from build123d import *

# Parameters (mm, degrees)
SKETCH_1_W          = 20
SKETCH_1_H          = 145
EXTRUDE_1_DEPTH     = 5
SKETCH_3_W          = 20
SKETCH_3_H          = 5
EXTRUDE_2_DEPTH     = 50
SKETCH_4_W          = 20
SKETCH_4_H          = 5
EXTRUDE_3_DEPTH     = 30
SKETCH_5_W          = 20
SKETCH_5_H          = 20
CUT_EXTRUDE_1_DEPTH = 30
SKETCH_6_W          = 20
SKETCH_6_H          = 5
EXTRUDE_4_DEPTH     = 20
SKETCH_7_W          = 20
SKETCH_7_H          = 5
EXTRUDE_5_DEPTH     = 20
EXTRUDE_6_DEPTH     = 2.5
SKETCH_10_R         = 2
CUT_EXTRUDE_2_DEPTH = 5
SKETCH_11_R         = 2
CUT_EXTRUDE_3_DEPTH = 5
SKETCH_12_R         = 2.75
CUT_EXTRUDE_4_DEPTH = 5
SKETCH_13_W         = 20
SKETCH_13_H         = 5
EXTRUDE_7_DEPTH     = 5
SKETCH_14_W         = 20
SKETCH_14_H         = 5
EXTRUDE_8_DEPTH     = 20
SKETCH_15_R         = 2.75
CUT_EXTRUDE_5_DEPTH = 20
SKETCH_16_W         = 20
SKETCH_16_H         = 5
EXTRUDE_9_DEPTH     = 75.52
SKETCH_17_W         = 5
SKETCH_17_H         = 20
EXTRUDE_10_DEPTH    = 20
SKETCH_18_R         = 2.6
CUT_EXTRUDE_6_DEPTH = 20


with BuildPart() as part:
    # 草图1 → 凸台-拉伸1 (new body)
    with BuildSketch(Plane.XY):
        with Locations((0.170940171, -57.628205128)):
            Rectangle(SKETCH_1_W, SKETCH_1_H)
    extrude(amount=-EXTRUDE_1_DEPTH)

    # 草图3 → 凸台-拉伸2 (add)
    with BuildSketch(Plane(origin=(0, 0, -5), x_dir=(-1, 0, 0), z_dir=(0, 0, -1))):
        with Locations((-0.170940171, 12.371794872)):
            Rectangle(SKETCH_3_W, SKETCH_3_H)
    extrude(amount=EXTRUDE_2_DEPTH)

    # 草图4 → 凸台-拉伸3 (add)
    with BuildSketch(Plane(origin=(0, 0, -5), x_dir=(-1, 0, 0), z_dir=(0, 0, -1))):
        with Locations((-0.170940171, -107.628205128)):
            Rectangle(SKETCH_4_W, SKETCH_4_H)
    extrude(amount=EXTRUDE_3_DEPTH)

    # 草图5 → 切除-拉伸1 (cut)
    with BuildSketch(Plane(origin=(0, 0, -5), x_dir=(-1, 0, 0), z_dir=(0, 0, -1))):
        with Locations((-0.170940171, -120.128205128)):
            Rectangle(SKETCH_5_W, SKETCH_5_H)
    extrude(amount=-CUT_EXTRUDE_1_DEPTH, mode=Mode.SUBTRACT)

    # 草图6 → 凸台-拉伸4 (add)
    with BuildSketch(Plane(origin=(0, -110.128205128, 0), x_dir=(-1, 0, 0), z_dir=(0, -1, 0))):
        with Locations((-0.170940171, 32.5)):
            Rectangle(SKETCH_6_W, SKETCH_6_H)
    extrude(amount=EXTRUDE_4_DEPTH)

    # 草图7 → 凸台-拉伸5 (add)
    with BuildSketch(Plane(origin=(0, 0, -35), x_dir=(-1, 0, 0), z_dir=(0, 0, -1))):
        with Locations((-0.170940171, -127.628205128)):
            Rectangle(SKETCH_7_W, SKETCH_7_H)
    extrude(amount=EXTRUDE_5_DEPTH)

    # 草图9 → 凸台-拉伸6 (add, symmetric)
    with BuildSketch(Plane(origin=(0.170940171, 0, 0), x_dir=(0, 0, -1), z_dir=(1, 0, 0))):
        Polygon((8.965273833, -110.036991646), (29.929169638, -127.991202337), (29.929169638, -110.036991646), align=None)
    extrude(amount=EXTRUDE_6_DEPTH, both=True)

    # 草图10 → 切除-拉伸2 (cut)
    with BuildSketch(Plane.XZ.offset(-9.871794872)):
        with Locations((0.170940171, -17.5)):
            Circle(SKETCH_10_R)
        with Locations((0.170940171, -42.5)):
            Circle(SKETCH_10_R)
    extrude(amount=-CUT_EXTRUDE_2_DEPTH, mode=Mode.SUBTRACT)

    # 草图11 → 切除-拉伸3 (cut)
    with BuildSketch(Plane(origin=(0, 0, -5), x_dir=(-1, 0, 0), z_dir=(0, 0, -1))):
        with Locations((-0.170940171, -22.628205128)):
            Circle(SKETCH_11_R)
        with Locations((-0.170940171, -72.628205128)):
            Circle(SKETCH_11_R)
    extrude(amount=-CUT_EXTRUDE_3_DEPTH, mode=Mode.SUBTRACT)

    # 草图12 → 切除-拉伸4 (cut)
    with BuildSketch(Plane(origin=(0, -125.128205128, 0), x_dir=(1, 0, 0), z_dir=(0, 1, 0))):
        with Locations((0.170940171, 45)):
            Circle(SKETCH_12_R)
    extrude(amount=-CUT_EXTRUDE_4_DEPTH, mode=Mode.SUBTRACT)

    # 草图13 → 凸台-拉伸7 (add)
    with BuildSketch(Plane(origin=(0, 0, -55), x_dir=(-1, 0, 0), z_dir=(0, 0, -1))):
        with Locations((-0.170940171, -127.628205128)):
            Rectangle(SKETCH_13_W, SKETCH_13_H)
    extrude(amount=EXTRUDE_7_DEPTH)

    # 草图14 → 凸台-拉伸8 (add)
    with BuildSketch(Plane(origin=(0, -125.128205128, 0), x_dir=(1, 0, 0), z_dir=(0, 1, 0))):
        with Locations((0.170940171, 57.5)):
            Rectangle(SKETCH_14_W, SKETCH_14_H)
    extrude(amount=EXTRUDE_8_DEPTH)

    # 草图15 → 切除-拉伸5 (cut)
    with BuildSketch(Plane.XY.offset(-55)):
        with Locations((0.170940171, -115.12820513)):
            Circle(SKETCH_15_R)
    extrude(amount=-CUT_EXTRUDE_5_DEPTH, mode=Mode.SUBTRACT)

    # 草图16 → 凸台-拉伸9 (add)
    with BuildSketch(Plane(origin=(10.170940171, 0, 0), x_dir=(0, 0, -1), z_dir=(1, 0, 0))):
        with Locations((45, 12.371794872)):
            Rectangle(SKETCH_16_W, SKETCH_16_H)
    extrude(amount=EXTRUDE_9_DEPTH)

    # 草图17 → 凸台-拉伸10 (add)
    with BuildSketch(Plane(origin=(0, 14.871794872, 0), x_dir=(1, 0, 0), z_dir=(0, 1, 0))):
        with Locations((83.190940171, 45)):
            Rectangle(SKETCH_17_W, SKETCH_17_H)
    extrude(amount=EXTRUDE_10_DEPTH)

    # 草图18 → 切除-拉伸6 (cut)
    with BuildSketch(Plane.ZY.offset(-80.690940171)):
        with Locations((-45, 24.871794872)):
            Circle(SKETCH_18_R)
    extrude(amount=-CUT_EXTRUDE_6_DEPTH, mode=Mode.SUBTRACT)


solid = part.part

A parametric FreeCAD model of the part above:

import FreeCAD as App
import Part
import Sketcher

V = App.Vector
Q = App.Units.Quantity


def add_polygon(sketch, points):
    """Adds a closed chain of lines whose ends are joined by coincident constraints."""
    first, n = sketch.GeometryCount, len(points)
    for a, b in zip(points, points[1:] + points[:1]):
        sketch.addGeometry(Part.LineSegment(App.Vector(*a, 0), App.Vector(*b, 0)), False)
    for i in range(n):
        sketch.addConstraint(Sketcher.Constraint("Coincident", first + i, 2, first + (i + 1) % n, 1))

doc = App.newDocument("Part")
params = doc.addObject("Spreadsheet::Sheet", "Params")
for row, (alias, value) in enumerate([
    ("sketch1_width", "20 mm"),
    ("sketch1_height", "145 mm"),
    ("pad1_length", "5 mm"),
    ("sketch2_width", "20 mm"),
    ("sketch2_height", "5 mm"),
    ("pad2_length", "50 mm"),
    ("sketch3_width", "20 mm"),
    ("sketch3_height", "5 mm"),
    ("pad3_length", "30 mm"),
    ("sketch4_width", "20 mm"),
    ("pocket1_length", "30 mm"),
    ("sketch5_width", "20 mm"),
    ("sketch5_height", "5 mm"),
    ("pad4_length", "20 mm"),
    ("sketch6_width", "20 mm"),
    ("sketch6_height", "5 mm"),
    ("pad5_length", "20 mm"),
    ("pad6_length", "5 mm"),
    ("sketch8_diameter", "4 mm"),
    ("pocket2_length", "5 mm"),
    ("sketch9_diameter", "4 mm"),
    ("pocket3_length", "5 mm"),
    ("sketch10_diameter", "5.5 mm"),
    ("pocket4_length", "5 mm"),
    ("sketch11_width", "20 mm"),
    ("sketch11_height", "5 mm"),
    ("pad7_length", "5 mm"),
    ("sketch12_width", "20 mm"),
    ("sketch12_height", "5 mm"),
    ("pad8_length", "20 mm"),
    ("sketch13_diameter", "5.5 mm"),
    ("pocket5_length", "20 mm"),
    ("sketch14_width", "5 mm"),
    ("sketch14_height", "20 mm"),
    ("pad9_length", "75.52 mm"),
    ("sketch15_width", "5 mm"),
    ("sketch15_height", "20 mm"),
    ("pad10_length", "20 mm"),
    ("sketch16_diameter", "5.2 mm"),
    ("pocket6_length", "20 mm"),
], start=1):
    params.set(f"A{row}", alias)
    params.set(f"B{row}", "=" + value)
    params.setAlias(f"B{row}", alias)

body = doc.addObject("PartDesign::Body", "Body")

sketch1 = body.newObject("Sketcher::SketchObject", "Sketch")
sketch1.AttachmentSupport = (doc.getObject("XY_Plane"), [""])
sketch1.MapMode = "FlatFace"
add_polygon(sketch1, [(-10, 15), (-10, -130), (10, -130), (10, 15)])
sketch1.addConstraint([
    Sketcher.Constraint("Vertical", 0),
    Sketcher.Constraint("Horizontal", 1),
    Sketcher.Constraint("Vertical", 2),
    Sketcher.Constraint("Horizontal", 3),
    Sketcher.Constraint("DistanceX", 1, 1, 1, 2, Q("20 mm")),
    Sketcher.Constraint("DistanceY", 0, 2, 0, 1, Q("145 mm")),
    Sketcher.Constraint("DistanceX", 0, 2, -1, 1, Q("9.82906 mm")),
    Sketcher.Constraint("DistanceY", 0, 2, -1, 1, Q("130.128205 mm")),
])
sketch1.setExpression("Constraints[8]", "Params.sketch1_width")
sketch1.setExpression("Constraints[9]", "Params.sketch1_height")
pad1 = body.newObject("PartDesign::Pad", "Pad")
pad1.Profile = sketch1
pad1.setExpression("Length", "Params.pad1_length")
pad1.Reversed = True

sketch2 = body.newObject("Sketcher::SketchObject", "Sketch001")
sketch2.AttachmentSupport = (doc.getObject("XY_Plane"), [""])
sketch2.MapMode = "FlatFace"
sketch2.AttachmentOffset = App.Placement(V(0, 0, -5), App.Rotation())
add_polygon(sketch2, [(10, 15), (10, 10), (-10, 10), (-10, 15)])
sketch2.addConstraint([
    Sketcher.Constraint("Vertical", 0),
    Sketcher.Constraint("Horizontal", 1),
    Sketcher.Constraint("Vertical", 2),
    Sketcher.Constraint("Horizontal", 3),
    Sketcher.Constraint("DistanceX", 1, 2, 1, 1, Q("20 mm")),
    Sketcher.Constraint("DistanceY", 0, 2, 0, 1, Q("5 mm")),
    Sketcher.Constraint("DistanceX", -1, 1, 0, 2, Q("10.17094 mm")),
    Sketcher.Constraint("DistanceY", -1, 1, 0, 2, Q("9.871795 mm")),
])
sketch2.setExpression("Constraints[8]", "Params.sketch2_width")
sketch2.setExpression("Constraints[9]", "Params.sketch2_height")
pad2 = body.newObject("PartDesign::Pad", "Pad001")
pad2.Profile = sketch2
pad2.setExpression("Length", "Params.pad2_length")
pad2.Reversed = True

sketch3 = body.newObject("Sketcher::SketchObject", "Sketch002")
sketch3.AttachmentSupport = (doc.getObject("XY_Plane"), [""])
sketch3.MapMode = "FlatFace"
sketch3.AttachmentOffset = App.Placement(V(0, 0, -5), App.Rotation())
add_polygon(sketch3, [(10, -105), (10, -110), (-10, -110), (-10, -105)])
sketch3.addConstraint([
    Sketcher.Constraint("Vertical", 0),
    Sketcher.Constraint("Horizontal", 1),
    Sketcher.Constraint("Vertical", 2),
    Sketcher.Constraint("Horizontal", 3),
    Sketcher.Constraint("DistanceX", 1, 2, 1, 1, Q("20 mm")),
    Sketcher.Constraint("DistanceY", 0, 2, 0, 1, Q("5 mm")),
    Sketcher.Constraint("DistanceX", -1, 1, 0, 2, Q("10.17094 mm")),
    Sketcher.Constraint("DistanceY", 0, 2, -1, 1, Q("110.128205 mm")),
])
sketch3.setExpression("Constraints[8]", "Params.sketch3_width")
sketch3.setExpression("Constraints[9]", "Params.sketch3_height")
pad3 = body.newObject("PartDesign::Pad", "Pad002")
pad3.Profile = sketch3
pad3.setExpression("Length", "Params.pad3_length")
pad3.Reversed = True

sketch4 = body.newObject("Sketcher::SketchObject", "Sketch003")
sketch4.AttachmentSupport = (doc.getObject("XY_Plane"), [""])
sketch4.MapMode = "FlatFace"
sketch4.AttachmentOffset = App.Placement(V(0, 0, -5), App.Rotation())
add_polygon(sketch4, [(10, -110), (10, -130), (-10, -130), (-10, -110)])
sketch4.addConstraint([
    Sketcher.Constraint("Vertical", 0),
    Sketcher.Constraint("Horizontal", 1),
    Sketcher.Constraint("Vertical", 2),
    Sketcher.Constraint("Horizontal", 3),
    Sketcher.Constraint("Equal", 3, 0),
    Sketcher.Constraint("DistanceX", 1, 2, 1, 1, Q("20 mm")),
    Sketcher.Constraint("DistanceX", -1, 1, 0, 2, Q("10.17094 mm")),
    Sketcher.Constraint("DistanceY", 0, 2, -1, 1, Q("130.128205 mm")),
])
sketch4.setExpression("Constraints[9]", "Params.sketch4_width")
pocket1 = body.newObject("PartDesign::Pocket", "Pocket")
pocket1.Profile = sketch4
pocket1.setExpression("Length", "Params.pocket1_length")
pocket1.Reversed = True

sketch5 = body.newObject("Sketcher::SketchObject", "Sketch004")
sketch5.AttachmentSupport = (doc.getObject("XZ_Plane"), [""])
sketch5.MapMode = "FlatFace"
sketch5.AttachmentOffset = App.Placement(V(0, 0, 110.128205), App.Rotation())
add_polygon(sketch5, [(10, -35), (10, -30), (-10, -30), (-10, -35)])
sketch5.addConstraint([
    Sketcher.Constraint("Vertical", 0),
    Sketcher.Constraint("Horizontal", 1),
    Sketcher.Constraint("Vertical", 2),
    Sketcher.Constraint("Horizontal", 3),
    Sketcher.Constraint("DistanceX", 1, 2, 1, 1, Q("20 mm")),
    Sketcher.Constraint("DistanceY", 0, 1, 0, 2, Q("5 mm")),
    Sketcher.Constraint("DistanceY", 0, 2, -1, 1, Q("30 mm")),
    Sketcher.Constraint("DistanceX", -1, 1, 0, 2, Q("10.17094 mm")),
])
sketch5.setExpression("Constraints[8]", "Params.sketch5_width")
sketch5.setExpression("Constraints[9]", "Params.sketch5_height")
pad4 = body.newObject("PartDesign::Pad", "Pad003")
pad4.Profile = sketch5
pad4.setExpression("Length", "Params.pad4_length")

sketch6 = body.newObject("Sketcher::SketchObject", "Sketch005")
sketch6.AttachmentSupport = (doc.getObject("XY_Plane"), [""])
sketch6.MapMode = "FlatFace"
sketch6.AttachmentOffset = App.Placement(V(0, 0, -35), App.Rotation())
add_polygon(sketch6, [(10.2, -125.1), (10.2, -130.1), (-9.8, -130.1), (-9.8, -125.1)])
sketch6.addConstraint([
    Sketcher.Constraint("Vertical", 0),
    Sketcher.Constraint("Horizontal", 1),
    Sketcher.Constraint("Vertical", 2),
    Sketcher.Constraint("Horizontal", 3),
    Sketcher.Constraint("DistanceX", 1, 2, 1, 1, Q("20 mm")),
    Sketcher.Constraint("DistanceY", 0, 2, 0, 1, Q("5 mm")),
    Sketcher.Constraint("DistanceX", -1, 1, 0, 2, Q("10.17094 mm")),
    Sketcher.Constraint("DistanceY", 0, 2, -1, 1, Q("130.128205 mm")),
])
sketch6.setExpression("Constraints[8]", "Params.sketch6_width")
sketch6.setExpression("Constraints[9]", "Params.sketch6_height")
pad5 = body.newObject("PartDesign::Pad", "Pad004")
pad5.Profile = sketch6
pad5.setExpression("Length", "Params.pad5_length")
pad5.Reversed = True

sketch7 = body.newObject("Sketcher::SketchObject", "Sketch006")
sketch7.AttachmentSupport = (doc.getObject("YZ_Plane"), [""])
sketch7.MapMode = "FlatFace"
sketch7.AttachmentOffset = App.Placement(V(0, 0, 0.17094), App.Rotation())
add_polygon(sketch7, [(-110, -9), (-128, -30), (-110, -30)])
sketch7.addConstraint([
    Sketcher.Constraint("Horizontal", 1),
    Sketcher.Constraint("Vertical", 2),
    Sketcher.Constraint("DistanceX", 1, 1, 1, 2, Q("17.954211 mm")),
    Sketcher.Constraint("DistanceY", 2, 1, 2, 2, Q("20.963896 mm")),
    Sketcher.Constraint("DistanceY", 0, 2, -1, 1, Q("29.92917 mm")),
    Sketcher.Constraint("DistanceX", 1, 2, -1, 1, Q("110.036992 mm")),
])
pad6 = body.newObject("PartDesign::Pad", "Pad005")
pad6.Profile = sketch7
pad6.setExpression("Length", "Params.pad6_length")
pad6.Midplane = True

sketch8 = body.newObject("Sketcher::SketchObject", "Sketch007")
sketch8.AttachmentSupport = (doc.getObject("XZ_Plane"), [""])
sketch8.MapMode = "FlatFace"
sketch8.AttachmentOffset = App.Placement(V(0, 0, -9.871795), App.Rotation())
sketch8.addGeometry([
    Part.Circle(V(0.2, -17.5, 0), V(0, 0, 1), 2),
    Part.Circle(V(0.2, -42.5, 0), V(0, 0, 1), 2),
], False)
sketch8.addConstraint([
    Sketcher.Constraint("Equal", 0, 1),
    Sketcher.Constraint("Vertical", 0, 3, 1, 3),
    Sketcher.Constraint("Diameter", 0, Q("4 mm")),
    Sketcher.Constraint("DistanceY", 1, 3, 0, 3, Q("25 mm")),
    Sketcher.Constraint("DistanceY", 0, 3, -1, 1, Q("17.5 mm")),
    Sketcher.Constraint("DistanceX", -1, 1, 0, 3, Q("0.17094 mm")),
])
sketch8.setExpression("Constraints[2]", "Params.sketch8_diameter")
pocket2 = body.newObject("PartDesign::Pocket", "Pocket001")
pocket2.Profile = sketch8
pocket2.setExpression("Length", "Params.pocket2_length")

sketch9 = body.newObject("Sketcher::SketchObject", "Sketch008")
sketch9.AttachmentSupport = (doc.getObject("XY_Plane"), [""])
sketch9.MapMode = "FlatFace"
sketch9.AttachmentOffset = App.Placement(V(0, 0, -5), App.Rotation())
sketch9.addGeometry([
    Part.Circle(V(0.2, -22.6, 0), V(0, 0, 1), 2),
    Part.Circle(V(0.2, -72.6, 0), V(0, 0, 1), 2),
], False)
sketch9.addConstraint([
    Sketcher.Constraint("Equal", 0, 1),
    Sketcher.Constraint("Vertical", 0, 3, 1, 3),
    Sketcher.Constraint("Diameter", 0, Q("4 mm")),
    Sketcher.Constraint("DistanceY", 1, 3, 0, 3, Q("50 mm")),
    Sketcher.Constraint("DistanceX", -1, 1, 0, 3, Q("0.17094 mm")),
    Sketcher.Constraint("DistanceY", 0, 3, -1, 1, Q("22.628205 mm")),
])
sketch9.setExpression("Constraints[2]", "Params.sketch9_diameter")
pocket3 = body.newObject("PartDesign::Pocket", "Pocket002")
pocket3.Profile = sketch9
pocket3.setExpression("Length", "Params.pocket3_length")
pocket3.Reversed = True

sketch10 = body.newObject("Sketcher::SketchObject", "Sketch009")
sketch10.AttachmentSupport = (doc.getObject("XZ_Plane"), [""])
sketch10.MapMode = "FlatFace"
sketch10.AttachmentOffset = App.Placement(V(0, 0, 125.128205), App.Rotation())
sketch10.addGeometry(Part.Circle(V(0.2, -45, 0), V(0, 0, 1), 2.8), False)
sketch10.addConstraint([
    Sketcher.Constraint("Diameter", 0, Q("5.5 mm")),
    Sketcher.Constraint("DistanceY", 0, 3, -1, 1, Q("45 mm")),
    Sketcher.Constraint("DistanceX", -1, 1, 0, 3, Q("0.17094 mm")),
])
sketch10.setExpression("Constraints[0]", "Params.sketch10_diameter")
pocket4 = body.newObject("PartDesign::Pocket", "Pocket003")
pocket4.Profile = sketch10
pocket4.setExpression("Length", "Params.pocket4_length")
pocket4.Reversed = True

sketch11 = body.newObject("Sketcher::SketchObject", "Sketch010")
sketch11.AttachmentSupport = (doc.getObject("XY_Plane"), [""])
sketch11.MapMode = "FlatFace"
sketch11.AttachmentOffset = App.Placement(V(0, 0, -55), App.Rotation())
add_polygon(sketch11, [(10.2, -125.1), (10.2, -130.1), (-9.8, -130.1), (-9.8, -125.1)])
sketch11.addConstraint([
    Sketcher.Constraint("Vertical", 0),
    Sketcher.Constraint("Horizontal", 1),
    Sketcher.Constraint("Vertical", 2),
    Sketcher.Constraint("Horizontal", 3),
    Sketcher.Constraint("DistanceX", 1, 2, 1, 1, Q("20 mm")),
    Sketcher.Constraint("DistanceY", 0, 2, 0, 1, Q("5 mm")),
    Sketcher.Constraint("DistanceX", -1, 1, 0, 2, Q("10.17094 mm")),
    Sketcher.Constraint("DistanceY", 0, 2, -1, 1, Q("130.128205 mm")),
])
sketch11.setExpression("Constraints[8]", "Params.sketch11_width")
sketch11.setExpression("Constraints[9]", "Params.sketch11_height")
pad7 = body.newObject("PartDesign::Pad", "Pad006")
pad7.Profile = sketch11
pad7.setExpression("Length", "Params.pad7_length")
pad7.Reversed = True

sketch12 = body.newObject("Sketcher::SketchObject", "Sketch011")
sketch12.AttachmentSupport = (doc.getObject("XZ_Plane"), [""])
sketch12.MapMode = "FlatFace"
sketch12.AttachmentOffset = App.Placement(V(0, 0, 125.128205), App.Rotation())
add_polygon(sketch12, [(-10, -60), (-10, -55), (10, -55), (10, -60)])
sketch12.addConstraint([
    Sketcher.Constraint("Vertical", 0),
    Sketcher.Constraint("Horizontal", 1),
    Sketcher.Constraint("Vertical", 2),
    Sketcher.Constraint("Horizontal", 3),
    Sketcher.Constraint("DistanceX", 1, 1, 1, 2, Q("20 mm")),
    Sketcher.Constraint("DistanceY", 0, 1, 0, 2, Q("5 mm")),
    Sketcher.Constraint("DistanceY", 0, 2, -1, 1, Q("55 mm")),
    Sketcher.Constraint("DistanceX", 0, 2, -1, 1, Q("9.82906 mm")),
])
sketch12.setExpression("Constraints[8]", "Params.sketch12_width")
sketch12.setExpression("Constraints[9]", "Params.sketch12_height")
pad8 = body.newObject("PartDesign::Pad", "Pad007")
pad8.Profile = sketch12
pad8.setExpression("Length", "Params.pad8_length")
pad8.Reversed = True

sketch13 = body.newObject("Sketcher::SketchObject", "Sketch012")
sketch13.AttachmentSupport = (doc.getObject("XY_Plane"), [""])
sketch13.MapMode = "FlatFace"
sketch13.AttachmentOffset = App.Placement(V(0, 0, -55), App.Rotation())
sketch13.addGeometry(Part.Circle(V(0.2, -115.1, 0), V(0, 0, 1), 2.8), False)
sketch13.addConstraint([
    Sketcher.Constraint("Diameter", 0, Q("5.5 mm")),
    Sketcher.Constraint("DistanceX", -1, 1, 0, 3, Q("0.17094 mm")),
    Sketcher.Constraint("DistanceY", 0, 3, -1, 1, Q("115.128205 mm")),
])
sketch13.setExpression("Constraints[0]", "Params.sketch13_diameter")
pocket5 = body.newObject("PartDesign::Pocket", "Pocket004")
pocket5.Profile = sketch13
pocket5.setExpression("Length", "Params.pocket5_length")

sketch14 = body.newObject("Sketcher::SketchObject", "Sketch013")
sketch14.AttachmentSupport = (doc.getObject("YZ_Plane"), [""])
sketch14.MapMode = "FlatFace"
sketch14.AttachmentOffset = App.Placement(V(0, 0, 10.17094), App.Rotation())
add_polygon(sketch14, [(15, -35), (10, -35), (10, -55), (15, -55)])
sketch14.addConstraint([
    Sketcher.Constraint("Horizontal", 0),
    Sketcher.Constraint("Vertical", 1),
    Sketcher.Constraint("Horizontal", 2),
    Sketcher.Constraint("Vertical", 3),
    Sketcher.Constraint("DistanceX", 0, 2, 0, 1, Q("5 mm")),
    Sketcher.Constraint("DistanceY", 1, 2, 1, 1, Q("20 mm")),
    Sketcher.Constraint("DistanceY", 0, 2, -1, 1, Q("35 mm")),
    Sketcher.Constraint("DistanceX", -1, 1, 0, 2, Q("9.871795 mm")),
])
sketch14.setExpression("Constraints[8]", "Params.sketch14_width")
sketch14.setExpression("Constraints[9]", "Params.sketch14_height")
pad9 = body.newObject("PartDesign::Pad", "Pad008")
pad9.Profile = sketch14
pad9.setExpression("Length", "Params.pad9_length")

sketch15 = body.newObject("Sketcher::SketchObject", "Sketch014")
sketch15.AttachmentSupport = (doc.getObject("XZ_Plane"), [""])
sketch15.MapMode = "FlatFace"
sketch15.AttachmentOffset = App.Placement(V(0, 0, -14.871795), App.Rotation())
add_polygon(sketch15, [(81, -55), (81, -35), (86, -35), (86, -55)])
sketch15.addConstraint([
    Sketcher.Constraint("Vertical", 0),
    Sketcher.Constraint("Horizontal", 1),
    Sketcher.Constraint("Vertical", 2),
    Sketcher.Constraint("Horizontal", 3),
    Sketcher.Constraint("DistanceX", 1, 1, 1, 2, Q("5 mm")),
    Sketcher.Constraint("DistanceY", 0, 1, 0, 2, Q("20 mm")),
    Sketcher.Constraint("DistanceY", 0, 2, -1, 1, Q("35 mm")),
    Sketcher.Constraint("DistanceX", -1, 1, 0, 2, Q("80.69094 mm")),
])
sketch15.setExpression("Constraints[8]", "Params.sketch15_width")
sketch15.setExpression("Constraints[9]", "Params.sketch15_height")
pad10 = body.newObject("PartDesign::Pad", "Pad009")
pad10.Profile = sketch15
pad10.setExpression("Length", "Params.pad10_length")
pad10.Reversed = True

sketch16 = body.newObject("Sketcher::SketchObject", "Sketch015")
sketch16.AttachmentSupport = (doc.getObject("YZ_Plane"), [""])
sketch16.MapMode = "FlatFace"
sketch16.AttachmentOffset = App.Placement(V(0, 0, 80.69094), App.Rotation())
sketch16.addGeometry(Part.Circle(V(24.9, -45, 0), V(0, 0, 1), 2.6), False)
sketch16.addConstraint([
    Sketcher.Constraint("Diameter", 0, Q("5.2 mm")),
    Sketcher.Constraint("DistanceY", 0, 3, -1, 1, Q("45 mm")),
    Sketcher.Constraint("DistanceX", -1, 1, 0, 3, Q("24.871795 mm")),
])
sketch16.setExpression("Constraints[0]", "Params.sketch16_diameter")
pocket6 = body.newObject("PartDesign::Pocket", "Pocket005")
pocket6.Profile = sketch16
pocket6.setExpression("Length", "Params.pocket6_length")
pocket6.Reversed = True

doc.recompute()
